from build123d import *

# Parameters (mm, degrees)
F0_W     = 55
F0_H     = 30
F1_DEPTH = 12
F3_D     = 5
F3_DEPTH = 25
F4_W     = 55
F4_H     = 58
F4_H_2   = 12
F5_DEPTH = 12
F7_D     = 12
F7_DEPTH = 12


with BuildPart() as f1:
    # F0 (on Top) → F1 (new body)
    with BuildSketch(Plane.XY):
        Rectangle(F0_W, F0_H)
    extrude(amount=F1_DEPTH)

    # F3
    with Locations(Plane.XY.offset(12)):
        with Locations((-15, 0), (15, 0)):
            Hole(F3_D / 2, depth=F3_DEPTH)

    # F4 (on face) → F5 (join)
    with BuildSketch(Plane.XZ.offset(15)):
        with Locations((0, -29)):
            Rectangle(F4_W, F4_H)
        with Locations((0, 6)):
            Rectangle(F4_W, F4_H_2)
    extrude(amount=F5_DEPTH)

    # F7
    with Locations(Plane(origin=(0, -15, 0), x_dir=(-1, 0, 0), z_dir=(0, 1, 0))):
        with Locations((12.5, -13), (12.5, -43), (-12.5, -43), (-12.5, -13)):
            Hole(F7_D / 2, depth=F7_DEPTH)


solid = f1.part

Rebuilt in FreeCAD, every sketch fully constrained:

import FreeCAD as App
import Part
import Sketcher

V = App.Vector

doc = App.newDocument("Part")
body = doc.addObject("PartDesign::Body", "Body")

# Sketch on XY plane
sketch1 = doc.addObject("Sketcher::SketchObject", "Sketch")
body.addObject(sketch1)
sketch1.AttachmentSupport = (doc.XY_Plane, [""])
sketch1.MapMode = "FlatFace"
sketch1.addGeometry([
    Part.LineSegment(V(-28, 15, 0), V(-28, -15, 0)),
    Part.LineSegment(V(-28, -15, 0), V(28, -15, 0)),
    Part.LineSegment(V(28, -15, 0), V(28, 15, 0)),
    Part.LineSegment(V(28, 15, 0), V(-28, 15, 0)),
], False)
sketch1.addConstraint([
    Sketcher.Constraint("Coincident", 0, 2, 1, 1),
    Sketcher.Constraint("Coincident", 1, 2, 2, 1),
    Sketcher.Constraint("Coincident", 2, 2, 3, 1),
    Sketcher.Constraint("Coincident", 3, 2, 0, 1),
    Sketcher.Constraint("Vertical", 0),
    Sketcher.Constraint("Horizontal", 1),
    Sketcher.Constraint("Vertical", 2),
    Sketcher.Constraint("Horizontal", 3),
    Sketcher.Constraint("Symmetric", 0, 2, 2, 2, -1, 1),
    Sketcher.Constraint("DistanceX", 1, 1, 1, 2, 55.0),
    Sketcher.Constraint("DistanceY", 0, 2, 0, 1, 30.0),
])
pad1 = doc.addObject("PartDesign::Pad", "Pad")
body.addObject(pad1)
pad1.Profile = sketch1
pad1.Length = 12

# Sketch on XY plane
sketch2 = doc.addObject("Sketcher::SketchObject", "Sketch001")
body.addObject(sketch2)
sketch2.AttachmentSupport = (doc.XY_Plane, [""])
sketch2.MapMode = "FlatFace"
sketch2.AttachmentOffset = App.Placement(V(0, 0, 12), App.Rotation())
sketch2.addGeometry([
    Part.Circle(V(-15, 0, 0), V(0, 0, 1), 2.5),
    Part.Circle(V(15, 0, 0), V(0, 0, 1), 2.5),
], False)
sketch2.addConstraint([
    Sketcher.Constraint("Equal", 0, 1),
    Sketcher.Constraint("Symmetric", 0, 3, 1, 3, -1, 1),
    Sketcher.Constraint("PointOnObject", 0, 3, -1),
    Sketcher.Constraint("Diameter", 0, 5.0),
    Sketcher.Constraint("DistanceX", 0, 3, -1, 1, 15.0),
])
doc.recompute()
hole = doc.addObject("PartDesign::Hole", "Hole")
body.addObject(hole)
hole.Profile = sketch2
hole.ThreadType = "None"
hole.Diameter = 5
hole.DepthType = "Dimension"
hole.Depth = 25
hole.DrillPoint = "Flat"

# Sketch on XZ plane
sketch3 = doc.addObject("Sketcher::SketchObject", "Sketch002")
body.addObject(sketch3)
sketch3.AttachmentSupport = (doc.XZ_Plane, [""])
sketch3.MapMode = "FlatFace"
sketch3.AttachmentOffset = App.Placement(V(0, 0, 15), App.Rotation())
sketch3.addGeometry([
    Part.LineSegment(V(-28, -58, 0), V(28, -58, 0)),
    Part.LineSegment(V(28, -58, 0), V(28, 12, 0)),
    Part.LineSegment(V(28, 12, 0), V(-28, 12, 0)),
    Part.LineSegment(V(-28, 12, 0), V(-28, -58, 0)),
], False)
sketch3.addConstraint([
    Sketcher.Constraint("Coincident", 0, 2, 1, 1),
    Sketcher.Constraint("Coincident", 1, 2, 2, 1),
    Sketcher.Constraint("Coincident", 2, 2, 3, 1),
    Sketcher.Constraint("Coincident", 3, 2, 0, 1),
    Sketcher.Constraint("Horizontal", 0),
    Sketcher.Constraint("Vertical", 1),
    Sketcher.Constraint("Horizontal", 2),
    Sketcher.Constraint("Vertical", 3),
    Sketcher.Constraint("DistanceX", 0, 1, 0, 2, 55.0),
    Sketcher.Constraint("DistanceY", 1, 1, 1, 2, 70.0),
    Sketcher.Constraint("DistanceY", 0, 2, -1, 1, 58.0),
    Sketcher.Constraint("DistanceX", -1, 1, 0, 2, 27.5),
])
pad2 = doc.addObject("PartDesign::Pad", "Pad001")
body.addObject(pad2)
pad2.Profile = sketch3
pad2.Length = 12

# Sketch on XZ plane
sketch4 = doc.addObject("Sketcher::SketchObject", "Sketch003")
body.addObject(sketch4)
sketch4.AttachmentSupport = (doc.XZ_Plane, [""])
sketch4.MapMode = "FlatFace"
sketch4.AttachmentOffset = App.Placement(V(0, 0, 15), App.Rotation())
sketch4.addGeometry([
    Part.Circle(V(-12, -13, 0), V(0, 0, 1), 6),
    Part.Circle(V(-12, -43, 0), V(0, 0, 1), 6),
    Part.Circle(V(12, -43, 0), V(0, 0, 1), 6),
    Part.Circle(V(12, -13, 0), V(0, 0, 1), 6),
], False)
sketch4.addConstraint([
    Sketcher.Constraint("Equal", 0, 1),
    Sketcher.Constraint("Equal", 1, 2),
    Sketcher.Constraint("Equal", 2, 3),
    Sketcher.Constraint("Symmetric", 1, 3, 2, 3, -2),
    Sketcher.Constraint("Symmetric", 0, 3, 3, 3, -2),
    Sketcher.Constraint("Vertical", 0, 3, 1, 3),
    Sketcher.Constraint("Diameter", 0, 12.0),
    Sketcher.Constraint("DistanceY", 0, 3, -1, 1, 13.0),
    Sketcher.Constraint("DistanceY", 1, 3, -1, 1, 43.0),
    Sketcher.Constraint("DistanceX", 1, 3, 2, 3, 25.0),
])
doc.recompute()
hole2 = doc.addObject("PartDesign::Hole", "Hole001")
body.addObject(hole2)
hole2.Profile = sketch4
hole2.ThreadType = "None"
hole2.Diameter = 12
hole2.DepthType = "Dimension"
hole2.Depth = 12
hole2.DrillPoint = "Flat"
hole2.Reversed = True

doc.recompute()
